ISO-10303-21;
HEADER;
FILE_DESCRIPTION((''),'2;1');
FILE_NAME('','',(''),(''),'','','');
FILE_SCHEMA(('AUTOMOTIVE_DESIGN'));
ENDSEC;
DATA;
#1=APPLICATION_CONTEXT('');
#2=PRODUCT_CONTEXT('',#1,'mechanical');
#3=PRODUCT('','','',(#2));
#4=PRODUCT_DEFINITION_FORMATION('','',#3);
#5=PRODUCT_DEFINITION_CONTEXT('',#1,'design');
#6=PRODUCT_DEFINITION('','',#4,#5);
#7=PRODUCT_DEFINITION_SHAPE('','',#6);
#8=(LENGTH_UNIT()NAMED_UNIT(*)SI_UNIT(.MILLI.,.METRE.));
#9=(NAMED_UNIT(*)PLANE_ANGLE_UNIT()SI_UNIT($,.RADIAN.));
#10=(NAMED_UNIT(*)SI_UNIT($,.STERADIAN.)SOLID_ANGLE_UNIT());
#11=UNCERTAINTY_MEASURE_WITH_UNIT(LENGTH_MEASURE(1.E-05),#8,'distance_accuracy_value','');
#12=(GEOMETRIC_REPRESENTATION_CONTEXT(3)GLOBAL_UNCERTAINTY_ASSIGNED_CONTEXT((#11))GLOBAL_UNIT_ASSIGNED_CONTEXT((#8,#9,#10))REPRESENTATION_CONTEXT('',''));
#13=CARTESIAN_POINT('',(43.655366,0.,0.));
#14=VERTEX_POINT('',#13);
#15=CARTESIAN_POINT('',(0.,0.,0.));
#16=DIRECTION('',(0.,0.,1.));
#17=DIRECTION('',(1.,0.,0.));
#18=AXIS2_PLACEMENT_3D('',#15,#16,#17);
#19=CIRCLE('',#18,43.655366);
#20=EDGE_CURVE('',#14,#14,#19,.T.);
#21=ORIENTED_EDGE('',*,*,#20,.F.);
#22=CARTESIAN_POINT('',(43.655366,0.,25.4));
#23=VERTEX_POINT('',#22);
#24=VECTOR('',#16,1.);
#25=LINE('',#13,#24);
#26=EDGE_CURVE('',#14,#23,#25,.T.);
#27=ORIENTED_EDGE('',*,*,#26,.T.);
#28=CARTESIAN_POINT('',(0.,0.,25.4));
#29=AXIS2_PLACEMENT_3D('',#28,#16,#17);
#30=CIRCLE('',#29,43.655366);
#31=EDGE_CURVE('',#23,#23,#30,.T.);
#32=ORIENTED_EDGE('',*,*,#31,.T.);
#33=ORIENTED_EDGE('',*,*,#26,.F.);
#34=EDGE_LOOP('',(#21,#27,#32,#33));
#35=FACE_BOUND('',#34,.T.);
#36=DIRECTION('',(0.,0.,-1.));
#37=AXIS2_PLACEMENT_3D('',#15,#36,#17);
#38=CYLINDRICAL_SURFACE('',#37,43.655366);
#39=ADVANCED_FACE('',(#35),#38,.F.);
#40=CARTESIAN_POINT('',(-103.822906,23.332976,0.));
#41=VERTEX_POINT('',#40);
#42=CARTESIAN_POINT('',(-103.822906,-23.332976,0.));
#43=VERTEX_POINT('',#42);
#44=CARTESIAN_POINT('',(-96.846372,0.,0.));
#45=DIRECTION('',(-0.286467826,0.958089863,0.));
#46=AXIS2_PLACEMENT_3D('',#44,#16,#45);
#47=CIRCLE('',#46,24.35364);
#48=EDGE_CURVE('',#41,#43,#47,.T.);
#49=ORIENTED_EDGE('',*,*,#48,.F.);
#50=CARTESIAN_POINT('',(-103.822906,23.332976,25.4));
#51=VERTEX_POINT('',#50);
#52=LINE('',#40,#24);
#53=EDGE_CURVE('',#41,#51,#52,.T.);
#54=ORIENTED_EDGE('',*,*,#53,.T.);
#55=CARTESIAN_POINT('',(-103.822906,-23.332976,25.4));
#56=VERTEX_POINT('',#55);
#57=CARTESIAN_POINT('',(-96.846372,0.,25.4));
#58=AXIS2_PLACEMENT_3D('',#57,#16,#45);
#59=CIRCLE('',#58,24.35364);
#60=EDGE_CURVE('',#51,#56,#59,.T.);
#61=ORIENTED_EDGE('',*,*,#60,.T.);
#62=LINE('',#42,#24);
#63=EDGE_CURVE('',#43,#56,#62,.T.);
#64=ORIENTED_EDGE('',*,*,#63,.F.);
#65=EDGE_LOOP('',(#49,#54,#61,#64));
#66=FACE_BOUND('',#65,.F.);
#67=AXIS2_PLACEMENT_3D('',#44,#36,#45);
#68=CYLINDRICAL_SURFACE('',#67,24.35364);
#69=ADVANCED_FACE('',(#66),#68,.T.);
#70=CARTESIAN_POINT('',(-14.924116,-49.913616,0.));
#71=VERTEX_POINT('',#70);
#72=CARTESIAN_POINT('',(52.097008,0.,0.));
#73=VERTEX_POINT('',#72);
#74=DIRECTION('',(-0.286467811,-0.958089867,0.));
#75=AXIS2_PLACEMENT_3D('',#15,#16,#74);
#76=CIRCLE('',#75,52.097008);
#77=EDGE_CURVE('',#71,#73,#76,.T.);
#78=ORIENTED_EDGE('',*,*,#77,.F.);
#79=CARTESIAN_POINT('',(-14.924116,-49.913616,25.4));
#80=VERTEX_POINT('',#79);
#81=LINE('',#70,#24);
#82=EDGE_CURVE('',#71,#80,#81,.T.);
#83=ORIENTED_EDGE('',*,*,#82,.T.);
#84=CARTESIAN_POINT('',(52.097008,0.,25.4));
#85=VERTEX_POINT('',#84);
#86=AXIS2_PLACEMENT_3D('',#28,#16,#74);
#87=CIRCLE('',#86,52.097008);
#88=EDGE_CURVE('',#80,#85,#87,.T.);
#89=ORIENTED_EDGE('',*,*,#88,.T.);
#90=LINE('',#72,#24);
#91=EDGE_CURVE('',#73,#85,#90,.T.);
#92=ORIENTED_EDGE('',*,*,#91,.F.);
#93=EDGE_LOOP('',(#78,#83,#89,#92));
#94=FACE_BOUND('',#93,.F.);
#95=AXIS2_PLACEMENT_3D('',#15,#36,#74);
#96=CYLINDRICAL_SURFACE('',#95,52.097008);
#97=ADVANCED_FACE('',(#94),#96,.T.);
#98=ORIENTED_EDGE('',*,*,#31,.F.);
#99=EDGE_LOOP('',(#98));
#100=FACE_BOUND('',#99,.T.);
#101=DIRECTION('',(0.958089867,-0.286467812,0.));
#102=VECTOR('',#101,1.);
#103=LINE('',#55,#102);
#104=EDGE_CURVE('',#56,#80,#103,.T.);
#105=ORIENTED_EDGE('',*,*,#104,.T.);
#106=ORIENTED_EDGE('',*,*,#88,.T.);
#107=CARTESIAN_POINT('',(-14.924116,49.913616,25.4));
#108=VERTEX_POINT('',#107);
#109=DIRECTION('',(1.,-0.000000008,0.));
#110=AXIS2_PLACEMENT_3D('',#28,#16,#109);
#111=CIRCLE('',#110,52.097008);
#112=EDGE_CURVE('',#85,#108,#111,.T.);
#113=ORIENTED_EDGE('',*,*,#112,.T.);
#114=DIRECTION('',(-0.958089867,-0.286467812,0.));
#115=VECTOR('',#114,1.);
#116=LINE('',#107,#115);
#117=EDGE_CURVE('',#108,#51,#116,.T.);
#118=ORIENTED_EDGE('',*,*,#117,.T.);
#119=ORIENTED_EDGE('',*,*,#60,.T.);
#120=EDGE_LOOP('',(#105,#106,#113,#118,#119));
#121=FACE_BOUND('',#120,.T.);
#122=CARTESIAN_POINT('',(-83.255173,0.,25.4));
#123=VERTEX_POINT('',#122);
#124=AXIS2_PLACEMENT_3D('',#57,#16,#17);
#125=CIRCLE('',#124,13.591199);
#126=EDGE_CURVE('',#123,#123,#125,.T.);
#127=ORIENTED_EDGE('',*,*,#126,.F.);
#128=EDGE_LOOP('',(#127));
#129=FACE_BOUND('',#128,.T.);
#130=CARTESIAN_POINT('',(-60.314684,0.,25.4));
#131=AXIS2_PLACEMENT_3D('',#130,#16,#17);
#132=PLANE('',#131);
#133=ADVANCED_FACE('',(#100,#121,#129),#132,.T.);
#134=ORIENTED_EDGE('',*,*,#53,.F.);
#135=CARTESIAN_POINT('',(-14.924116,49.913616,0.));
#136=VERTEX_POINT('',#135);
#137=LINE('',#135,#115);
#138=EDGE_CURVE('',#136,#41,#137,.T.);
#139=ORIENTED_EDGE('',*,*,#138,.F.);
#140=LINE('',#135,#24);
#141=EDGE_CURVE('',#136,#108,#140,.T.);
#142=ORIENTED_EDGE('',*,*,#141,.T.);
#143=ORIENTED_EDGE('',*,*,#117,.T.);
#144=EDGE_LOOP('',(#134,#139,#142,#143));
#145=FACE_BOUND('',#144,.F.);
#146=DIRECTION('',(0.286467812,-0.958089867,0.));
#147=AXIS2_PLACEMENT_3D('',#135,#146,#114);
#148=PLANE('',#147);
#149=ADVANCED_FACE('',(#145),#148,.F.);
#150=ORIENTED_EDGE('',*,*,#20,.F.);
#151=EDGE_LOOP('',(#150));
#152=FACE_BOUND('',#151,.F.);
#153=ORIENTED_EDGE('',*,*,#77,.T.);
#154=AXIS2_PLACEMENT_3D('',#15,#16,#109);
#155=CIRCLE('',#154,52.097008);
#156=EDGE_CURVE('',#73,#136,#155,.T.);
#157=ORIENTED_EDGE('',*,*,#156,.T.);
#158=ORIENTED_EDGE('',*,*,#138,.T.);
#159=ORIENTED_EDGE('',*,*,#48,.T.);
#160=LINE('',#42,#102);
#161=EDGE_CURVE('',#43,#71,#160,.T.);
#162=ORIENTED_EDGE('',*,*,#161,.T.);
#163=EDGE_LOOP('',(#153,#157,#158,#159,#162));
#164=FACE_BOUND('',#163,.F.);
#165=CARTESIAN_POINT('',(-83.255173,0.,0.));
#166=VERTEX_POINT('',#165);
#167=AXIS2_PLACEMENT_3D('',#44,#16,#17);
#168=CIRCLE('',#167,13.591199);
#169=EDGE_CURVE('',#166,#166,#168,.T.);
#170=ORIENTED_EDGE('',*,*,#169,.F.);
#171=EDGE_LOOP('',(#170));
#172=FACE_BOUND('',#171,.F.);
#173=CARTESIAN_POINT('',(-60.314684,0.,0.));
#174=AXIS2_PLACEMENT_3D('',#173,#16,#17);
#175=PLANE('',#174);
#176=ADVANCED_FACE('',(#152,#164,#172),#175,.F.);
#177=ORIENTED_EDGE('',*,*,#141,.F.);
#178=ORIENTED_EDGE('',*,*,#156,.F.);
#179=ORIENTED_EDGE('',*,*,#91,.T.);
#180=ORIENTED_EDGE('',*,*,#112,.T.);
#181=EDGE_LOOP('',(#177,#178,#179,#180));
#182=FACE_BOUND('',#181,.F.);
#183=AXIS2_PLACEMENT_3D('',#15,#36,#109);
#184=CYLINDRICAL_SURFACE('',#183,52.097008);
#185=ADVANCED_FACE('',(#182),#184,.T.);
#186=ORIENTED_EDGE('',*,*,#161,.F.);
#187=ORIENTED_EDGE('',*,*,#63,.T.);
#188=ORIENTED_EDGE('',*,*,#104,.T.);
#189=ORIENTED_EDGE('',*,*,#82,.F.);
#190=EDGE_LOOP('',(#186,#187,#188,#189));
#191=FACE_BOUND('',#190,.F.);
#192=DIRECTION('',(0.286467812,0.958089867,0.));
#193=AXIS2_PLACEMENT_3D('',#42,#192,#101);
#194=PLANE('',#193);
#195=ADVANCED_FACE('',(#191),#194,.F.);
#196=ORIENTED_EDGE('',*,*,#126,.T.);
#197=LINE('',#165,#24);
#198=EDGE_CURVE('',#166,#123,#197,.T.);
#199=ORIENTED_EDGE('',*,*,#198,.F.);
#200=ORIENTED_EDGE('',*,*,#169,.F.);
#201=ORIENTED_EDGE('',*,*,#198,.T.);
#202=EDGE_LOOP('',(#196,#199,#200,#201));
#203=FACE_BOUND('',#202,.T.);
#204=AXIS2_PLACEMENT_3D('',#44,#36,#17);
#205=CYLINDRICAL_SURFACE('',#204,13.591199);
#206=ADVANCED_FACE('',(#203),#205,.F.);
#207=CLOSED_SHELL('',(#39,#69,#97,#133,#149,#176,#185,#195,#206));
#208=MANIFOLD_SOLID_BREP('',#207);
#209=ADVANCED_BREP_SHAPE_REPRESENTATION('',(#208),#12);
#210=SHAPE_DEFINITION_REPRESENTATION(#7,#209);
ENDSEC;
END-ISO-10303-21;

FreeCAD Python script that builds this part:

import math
import FreeCAD as App
import Part
import Sketcher

V = App.Vector
Q = App.Units.Quantity

doc = App.newDocument("Part")
body = doc.addObject("PartDesign::Body", "Body")

sketch1 = body.newObject("Sketcher::SketchObject", "Sketch")
sketch1.AttachmentSupport = (doc.getObject("XY_Plane"), [""])
sketch1.MapMode = "FlatFace"
sketch1.addGeometry([
    Part.LineSegment(V(-15, 50, 0), V(-104, 23, 0)),
    Part.ArcOfCircle(Part.Circle(V(-97, 0, 0), V(0, 0, 1), 24), math.radians(107), math.radians(253)),
    Part.LineSegment(V(-104, -23, 0), V(-15, -50, 0)),
    Part.ArcOfCircle(Part.Circle(V(0, 0, 0), V(0, 0, 1), 52), math.radians(-107), math.radians(0)),
    Part.ArcOfCircle(Part.Circle(V(0, 0, 0), V(0, 0, 1), 52), math.radians(0), math.radians(107)),
    Part.Circle(V(-97, 0, 0), V(0, 0, 1), 14),
    Part.Circle(V(0, 0, 0), V(0, 0, 1), 44),
], False)
sketch1.addConstraint([
    Sketcher.Constraint("Tangent", 0, 2, 1, 1),
    Sketcher.Constraint("Tangent", 1, 2, 2, 1),
    Sketcher.Constraint("Tangent", 2, 2, 3, 1),
    Sketcher.Constraint("Tangent", 3, 2, 4, 1),
    Sketcher.Constraint("Tangent", 4, 2, 0, 1),
    Sketcher.Constraint("Coincident", 3, 3, -1, 1),
    Sketcher.Constraint("Coincident", 6, 3, -1, 1),
    Sketcher.Constraint("Coincident", 5, 3, 1, 3),
    Sketcher.Constraint("Equal", 3, 4),
    Sketcher.Constraint("PointOnObject", 1, 3, -1),
    Sketcher.Constraint("PointOnObject", 3, 2, -1),
    Sketcher.Constraint("Diameter", 6, Q("87.310732 mm")),
    Sketcher.Constraint("Radius", 1, Q("24.35364 mm")),
    Sketcher.Constraint("Radius", 3, Q("52.097008 mm")),
    Sketcher.Constraint("Diameter", 5, Q("27.182398 mm")),
    Sketcher.Constraint("DistanceX", 1, 3, -1, 1, Q("96.846372 mm")),
])
pad1 = body.newObject("PartDesign::Pad", "Pad")
pad1.Profile = sketch1
pad1.Length = Q("1 in")

doc.recompute()
